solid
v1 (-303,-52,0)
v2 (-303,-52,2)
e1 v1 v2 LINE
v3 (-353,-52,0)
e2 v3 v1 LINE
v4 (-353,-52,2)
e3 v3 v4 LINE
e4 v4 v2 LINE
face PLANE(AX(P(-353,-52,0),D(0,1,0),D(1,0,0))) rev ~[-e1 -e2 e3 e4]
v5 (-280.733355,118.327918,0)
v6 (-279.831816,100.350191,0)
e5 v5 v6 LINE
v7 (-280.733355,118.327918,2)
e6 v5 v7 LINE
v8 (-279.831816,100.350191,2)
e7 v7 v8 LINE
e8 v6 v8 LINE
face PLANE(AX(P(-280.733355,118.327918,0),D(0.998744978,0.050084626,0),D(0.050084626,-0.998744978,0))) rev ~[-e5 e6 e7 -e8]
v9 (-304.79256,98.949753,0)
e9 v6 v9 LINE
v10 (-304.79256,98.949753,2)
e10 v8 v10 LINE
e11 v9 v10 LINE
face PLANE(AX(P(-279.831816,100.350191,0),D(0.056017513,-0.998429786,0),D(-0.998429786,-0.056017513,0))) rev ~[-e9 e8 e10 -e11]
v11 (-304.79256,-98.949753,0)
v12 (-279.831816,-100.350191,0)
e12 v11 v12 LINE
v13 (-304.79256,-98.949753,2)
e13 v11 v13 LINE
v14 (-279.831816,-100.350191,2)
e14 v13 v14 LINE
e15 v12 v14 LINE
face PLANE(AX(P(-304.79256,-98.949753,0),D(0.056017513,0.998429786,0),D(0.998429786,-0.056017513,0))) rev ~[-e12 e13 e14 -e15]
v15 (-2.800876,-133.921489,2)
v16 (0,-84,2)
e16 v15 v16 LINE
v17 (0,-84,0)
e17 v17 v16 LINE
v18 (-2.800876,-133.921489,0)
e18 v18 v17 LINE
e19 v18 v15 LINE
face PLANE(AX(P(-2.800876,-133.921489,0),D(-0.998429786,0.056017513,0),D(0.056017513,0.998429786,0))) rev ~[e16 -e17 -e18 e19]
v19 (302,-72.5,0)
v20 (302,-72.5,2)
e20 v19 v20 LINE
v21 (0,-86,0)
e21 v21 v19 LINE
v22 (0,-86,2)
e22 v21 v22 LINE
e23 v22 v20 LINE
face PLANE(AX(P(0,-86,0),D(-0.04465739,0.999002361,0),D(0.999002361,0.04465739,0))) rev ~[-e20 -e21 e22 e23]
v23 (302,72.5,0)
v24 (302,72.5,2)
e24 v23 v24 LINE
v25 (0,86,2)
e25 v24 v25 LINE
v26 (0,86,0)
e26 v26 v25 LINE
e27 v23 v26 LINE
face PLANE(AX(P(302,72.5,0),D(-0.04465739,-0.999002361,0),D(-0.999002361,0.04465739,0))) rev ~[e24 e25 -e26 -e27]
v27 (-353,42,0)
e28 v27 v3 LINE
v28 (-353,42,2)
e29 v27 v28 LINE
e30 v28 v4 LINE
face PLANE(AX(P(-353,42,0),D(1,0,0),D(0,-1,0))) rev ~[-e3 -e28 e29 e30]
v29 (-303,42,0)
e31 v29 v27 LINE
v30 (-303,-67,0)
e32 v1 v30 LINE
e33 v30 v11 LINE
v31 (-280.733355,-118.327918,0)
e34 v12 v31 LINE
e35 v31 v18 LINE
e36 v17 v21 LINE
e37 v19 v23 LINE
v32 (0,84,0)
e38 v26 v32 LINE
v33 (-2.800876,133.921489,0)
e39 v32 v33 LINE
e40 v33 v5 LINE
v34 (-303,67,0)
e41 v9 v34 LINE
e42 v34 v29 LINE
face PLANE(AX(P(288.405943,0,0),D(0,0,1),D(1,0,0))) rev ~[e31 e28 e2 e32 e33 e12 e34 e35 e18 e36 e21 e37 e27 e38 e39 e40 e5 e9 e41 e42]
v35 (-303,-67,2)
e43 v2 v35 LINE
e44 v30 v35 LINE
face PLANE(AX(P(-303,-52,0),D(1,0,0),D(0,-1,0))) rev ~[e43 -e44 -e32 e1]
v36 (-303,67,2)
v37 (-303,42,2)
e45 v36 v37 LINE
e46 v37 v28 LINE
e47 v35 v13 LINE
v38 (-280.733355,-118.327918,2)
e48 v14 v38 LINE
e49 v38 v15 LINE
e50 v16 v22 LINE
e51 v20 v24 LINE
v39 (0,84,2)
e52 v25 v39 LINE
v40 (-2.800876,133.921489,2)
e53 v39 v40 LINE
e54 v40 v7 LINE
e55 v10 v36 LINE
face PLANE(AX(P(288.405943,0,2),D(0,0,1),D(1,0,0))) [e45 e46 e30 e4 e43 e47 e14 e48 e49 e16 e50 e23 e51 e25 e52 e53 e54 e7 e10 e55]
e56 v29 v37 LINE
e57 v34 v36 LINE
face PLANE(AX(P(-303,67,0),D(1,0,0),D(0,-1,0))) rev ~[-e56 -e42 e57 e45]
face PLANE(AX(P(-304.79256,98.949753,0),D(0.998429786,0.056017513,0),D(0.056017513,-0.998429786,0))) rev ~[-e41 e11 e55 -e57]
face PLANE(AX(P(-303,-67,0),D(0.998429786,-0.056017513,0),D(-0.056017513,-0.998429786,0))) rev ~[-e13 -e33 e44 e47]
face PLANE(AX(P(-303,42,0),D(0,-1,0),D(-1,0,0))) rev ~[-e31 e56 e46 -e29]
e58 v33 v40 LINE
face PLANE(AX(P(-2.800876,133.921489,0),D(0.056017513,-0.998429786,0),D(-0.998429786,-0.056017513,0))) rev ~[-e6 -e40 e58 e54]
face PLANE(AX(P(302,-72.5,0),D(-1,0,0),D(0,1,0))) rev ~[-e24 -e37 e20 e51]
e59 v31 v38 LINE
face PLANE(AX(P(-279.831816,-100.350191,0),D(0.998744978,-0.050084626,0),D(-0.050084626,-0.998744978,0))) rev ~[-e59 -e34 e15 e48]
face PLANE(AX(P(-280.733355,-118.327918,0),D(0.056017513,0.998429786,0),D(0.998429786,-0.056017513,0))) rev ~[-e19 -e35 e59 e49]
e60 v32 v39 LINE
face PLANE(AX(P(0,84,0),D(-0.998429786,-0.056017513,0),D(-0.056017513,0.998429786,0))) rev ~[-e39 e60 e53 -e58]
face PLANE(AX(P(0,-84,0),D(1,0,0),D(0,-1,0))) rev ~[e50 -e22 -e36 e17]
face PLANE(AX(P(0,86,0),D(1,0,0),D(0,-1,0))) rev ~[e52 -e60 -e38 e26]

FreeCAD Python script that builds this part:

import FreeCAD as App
import Part
import Sketcher

V = App.Vector


def add_polygon(sketch, points):
    """Adds a closed chain of lines whose ends are joined by coincident constraints."""
    first, n = sketch.GeometryCount, len(points)
    for a, b in zip(points, points[1:] + points[:1]):
        sketch.addGeometry(Part.LineSegment(App.Vector(*a, 0), App.Vector(*b, 0)), False)
    for i in range(n):
        sketch.addConstraint(Sketcher.Constraint("Coincident", first + i, 2, first + (i + 1) % n, 1))

doc = App.newDocument("Part")
body = doc.addObject("PartDesign::Body", "Body")

sketch1 = body.newObject("Sketcher::SketchObject", "Sketch")
sketch1.AttachmentSupport = (doc.getObject("XY_Plane"), [""])
sketch1.MapMode = "FlatFace"
add_polygon(sketch1, [(302, 72.5), (0, 86), (0, 84), (-2.8, 133.9), (-280.7, 118.3), (-279.8, 100.4), (-304.8, 98.9), (-303, 67), (-303, 42), (-353, 42), (-353, -52), (-303, -52), (-303, -67), (-304.8, -98.9), (-279.8, -100.4), (-280.7, -118.3), (-2.8, -133.9), (0, -84), (0, -86), (302, -72.5)])
sketch1.addConstraint([
    Sketcher.Constraint("Vertical", 1),
    Sketcher.Constraint("Vertical", 7),
    Sketcher.Constraint("Horizontal", 8),
    Sketcher.Constraint("Vertical", 9),
    Sketcher.Constraint("Horizontal", 10),
    Sketcher.Constraint("Vertical", 11),
    Sketcher.Constraint("Vertical", 17),
    Sketcher.Constraint("Vertical", 19),
    Sketcher.Constraint("Symmetric", 1, 2, 16, 2, -1, 1),
    Sketcher.Constraint("Symmetric", 6, 2, 11, 2, -1),
    Sketcher.Constraint("Symmetric", 5, 2, 12, 2, -1),
    Sketcher.Constraint("Symmetric", 4, 2, 13, 2, -1),
    Sketcher.Constraint("Symmetric", 3, 2, 14, 2, -1),
    Sketcher.Constraint("Symmetric", 2, 2, 15, 2, -1),
    Sketcher.Constraint("Symmetric", 0, 2, 17, 2, -1),
    Sketcher.Constraint("Perpendicular", 2, 3),
    Sketcher.Constraint("Parallel", 3, 5),
    Sketcher.Constraint("Perpendicular", 5, 6),
    Sketcher.Constraint("Equal", 0, 18),
    Sketcher.Constraint("DistanceX", 8, 2, 8, 1, 50.0),
    Sketcher.Constraint("DistanceY", 1, 2, 1, 1, 2.0),
    Sketcher.Constraint("DistanceY", 7, 2, 7, 1, 25.0),
    Sketcher.Constraint("DistanceY", 9, 2, 9, 1, 94.0),
    Sketcher.Constraint("DistanceY", 11, 2, 11, 1, 15.0),
    Sketcher.Constraint("DistanceY", 19, 1, 19, 2, 145.0),
    Sketcher.Constraint("Distance", 2, 50.0),
    Sketcher.Constraint("Distance", 5, 25.0),
    Sketcher.Constraint("Distance", 6, 32.0),
    Sketcher.Constraint("DistanceY", -1, 1, 0, 2, 86.0),
    Sketcher.Constraint("DistanceX", 6, 2, -1, 1, 303.0),
    Sketcher.Constraint("DistanceX", -1, 1, 18, 2, 302.0),
    Sketcher.Constraint("DistanceY", 4, 2, 2, 2, 33.571298),
    Sketcher.Constraint("Distance", 3, 278.369579),
])
pad1 = body.newObject("PartDesign::Pad", "Pad")
pad1.Profile = sketch1
pad1.Length = 2

doc.recompute()
